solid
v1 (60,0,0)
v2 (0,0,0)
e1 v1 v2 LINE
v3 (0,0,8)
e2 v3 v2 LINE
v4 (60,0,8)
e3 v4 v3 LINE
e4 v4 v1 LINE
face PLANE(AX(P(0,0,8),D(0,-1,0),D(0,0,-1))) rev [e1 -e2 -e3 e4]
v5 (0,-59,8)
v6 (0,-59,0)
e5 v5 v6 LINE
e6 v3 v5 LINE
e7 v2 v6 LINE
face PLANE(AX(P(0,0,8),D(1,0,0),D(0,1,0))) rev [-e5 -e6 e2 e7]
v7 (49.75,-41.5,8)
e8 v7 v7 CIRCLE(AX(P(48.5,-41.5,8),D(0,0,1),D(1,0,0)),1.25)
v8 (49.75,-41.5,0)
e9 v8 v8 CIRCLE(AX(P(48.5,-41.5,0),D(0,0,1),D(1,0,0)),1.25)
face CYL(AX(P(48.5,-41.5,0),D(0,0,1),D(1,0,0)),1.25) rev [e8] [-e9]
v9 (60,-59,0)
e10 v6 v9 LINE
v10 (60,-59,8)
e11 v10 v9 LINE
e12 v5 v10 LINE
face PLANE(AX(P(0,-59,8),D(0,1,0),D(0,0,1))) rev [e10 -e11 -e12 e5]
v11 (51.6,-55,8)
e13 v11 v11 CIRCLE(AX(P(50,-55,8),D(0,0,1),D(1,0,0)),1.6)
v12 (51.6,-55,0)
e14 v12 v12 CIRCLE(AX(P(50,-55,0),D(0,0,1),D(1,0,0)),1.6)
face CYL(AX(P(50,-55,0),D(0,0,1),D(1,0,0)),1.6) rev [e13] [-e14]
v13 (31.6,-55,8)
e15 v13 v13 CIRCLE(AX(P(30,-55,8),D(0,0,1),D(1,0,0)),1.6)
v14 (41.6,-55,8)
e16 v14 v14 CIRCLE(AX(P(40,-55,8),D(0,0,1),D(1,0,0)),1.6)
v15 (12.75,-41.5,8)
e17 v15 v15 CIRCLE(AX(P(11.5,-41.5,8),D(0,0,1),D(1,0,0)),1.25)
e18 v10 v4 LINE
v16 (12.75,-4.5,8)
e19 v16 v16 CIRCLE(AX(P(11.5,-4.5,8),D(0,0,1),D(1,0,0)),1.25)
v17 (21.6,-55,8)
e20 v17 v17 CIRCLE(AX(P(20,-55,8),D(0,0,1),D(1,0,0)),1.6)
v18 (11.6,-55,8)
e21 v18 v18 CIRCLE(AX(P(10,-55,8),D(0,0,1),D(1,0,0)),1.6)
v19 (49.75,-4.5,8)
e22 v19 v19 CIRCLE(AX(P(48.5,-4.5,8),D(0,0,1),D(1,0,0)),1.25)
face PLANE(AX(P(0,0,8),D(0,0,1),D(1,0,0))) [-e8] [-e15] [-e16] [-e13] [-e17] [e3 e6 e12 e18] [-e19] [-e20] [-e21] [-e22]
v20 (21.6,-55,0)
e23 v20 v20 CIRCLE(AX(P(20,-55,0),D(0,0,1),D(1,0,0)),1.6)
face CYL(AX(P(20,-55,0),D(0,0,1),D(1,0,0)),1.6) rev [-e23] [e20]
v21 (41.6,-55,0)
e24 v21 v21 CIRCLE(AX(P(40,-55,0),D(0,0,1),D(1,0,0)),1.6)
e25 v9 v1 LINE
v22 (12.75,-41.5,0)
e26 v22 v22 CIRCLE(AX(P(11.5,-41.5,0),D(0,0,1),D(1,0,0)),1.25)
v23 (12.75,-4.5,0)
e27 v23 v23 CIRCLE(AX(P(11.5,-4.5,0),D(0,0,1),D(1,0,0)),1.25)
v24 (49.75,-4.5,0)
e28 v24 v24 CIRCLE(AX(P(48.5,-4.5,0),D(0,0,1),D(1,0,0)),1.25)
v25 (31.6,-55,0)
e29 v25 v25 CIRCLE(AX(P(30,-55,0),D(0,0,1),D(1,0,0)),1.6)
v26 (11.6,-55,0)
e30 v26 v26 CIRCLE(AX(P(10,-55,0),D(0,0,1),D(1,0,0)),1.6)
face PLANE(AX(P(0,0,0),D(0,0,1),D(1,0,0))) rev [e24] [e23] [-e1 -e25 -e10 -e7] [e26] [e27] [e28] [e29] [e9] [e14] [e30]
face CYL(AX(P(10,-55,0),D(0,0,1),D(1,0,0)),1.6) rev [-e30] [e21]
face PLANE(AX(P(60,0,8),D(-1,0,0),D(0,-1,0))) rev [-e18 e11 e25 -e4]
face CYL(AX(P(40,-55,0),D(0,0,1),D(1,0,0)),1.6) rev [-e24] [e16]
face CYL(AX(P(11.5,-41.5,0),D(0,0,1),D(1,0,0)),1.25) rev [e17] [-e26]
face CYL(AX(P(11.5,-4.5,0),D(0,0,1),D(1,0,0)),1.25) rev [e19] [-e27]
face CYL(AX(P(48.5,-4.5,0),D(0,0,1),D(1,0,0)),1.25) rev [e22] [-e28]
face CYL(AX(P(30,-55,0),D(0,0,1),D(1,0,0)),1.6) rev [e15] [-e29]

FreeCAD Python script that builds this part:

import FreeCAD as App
import Part
import Sketcher
Q = App.Units.Quantity


def add_polygon(sketch, points):
    """Adds a closed chain of lines whose ends are joined by coincident constraints."""
    first, n = sketch.GeometryCount, len(points)
    for a, b in zip(points, points[1:] + points[:1]):
        sketch.addGeometry(Part.LineSegment(App.Vector(*a, 0), App.Vector(*b, 0)), False)
    for i in range(n):
        sketch.addConstraint(Sketcher.Constraint("Coincident", first + i, 2, first + (i + 1) % n, 1))

doc = App.newDocument("Part")
params = doc.addObject("Spreadsheet::Sheet", "Params")
for row, (alias, value) in enumerate([
    ("sketch1_width", "60 mm"),
    ("sketch1_height", "59 mm"),
    ("pad1_length", "8 mm"),
    ("sketch2_diameter", "2.5 mm"),
    ("pocket1_length", "8 mm"),
    ("sketch3_diameter", "3.2 mm"),
], start=1):
    params.set(f"A{row}", alias)
    params.set(f"B{row}", "=" + value)
    params.setAlias(f"B{row}", alias)

body = doc.addObject("PartDesign::Body", "Body")

# Sketch on XY plane
sketch1 = body.newObject("Sketcher::SketchObject", "Sketch")
sketch1.AttachmentSupport = (doc.getObject("XY_Plane"), [""])
sketch1.MapMode = "FlatFace"
add_polygon(sketch1, [(0, 0), (0, -59), (60, -59), (60, 0)])  # lines 0-3
sketch1.addConstraint(Sketcher.Constraint("Vertical", 0))
sketch1.addConstraint(Sketcher.Constraint("Horizontal", 1))
sketch1.addConstraint(Sketcher.Constraint("Vertical", 2))
sketch1.addConstraint(Sketcher.Constraint("Horizontal", 3))
sketch1.addConstraint(Sketcher.Constraint("Coincident", 3, 2, -1, 1))
sketch1.addConstraint(Sketcher.Constraint("DistanceX", 1, 1, 1, 2, Q("60 mm")))
sketch1.addConstraint(Sketcher.Constraint("DistanceY", 0, 2, 0, 1, Q("59 mm")))
sketch1.setExpression("Constraints[9]", "Params.sketch1_width")
sketch1.setExpression("Constraints[10]", "Params.sketch1_height")
pad1 = body.newObject("PartDesign::Pad", "Pad")
pad1.Profile = sketch1
pad1.setExpression("Length", "Params.pad1_length")

# Sketch on XY plane
sketch2 = body.newObject("Sketcher::SketchObject", "Sketch001")
sketch2.AttachmentSupport = (doc.getObject("XY_Plane"), [""])
sketch2.MapMode = "FlatFace"
sketch2.AttachmentOffset = App.Placement(App.Vector(0, 0, 8), App.Rotation())
sketch2.addGeometry(Part.Circle(App.Vector(11.5, -4.5, 0), App.Vector(0, 0, 1), 1.25), False)
sketch2.addGeometry(Part.Circle(App.Vector(48.5, -4.5, 0), App.Vector(0, 0, 1), 1.25), False)
sketch2.addGeometry(Part.Circle(App.Vector(11.5, -41.5, 0), App.Vector(0, 0, 1), 1.25), False)
sketch2.addGeometry(Part.Circle(App.Vector(48.5, -41.5, 0), App.Vector(0, 0, 1), 1.25), False)
sketch2.addConstraint(Sketcher.Constraint("Equal", 0, 1))
sketch2.addConstraint(Sketcher.Constraint("Equal", 1, 2))
sketch2.addConstraint(Sketcher.Constraint("Equal", 2, 3))
sketch2.addConstraint(Sketcher.Constraint("Horizontal", 0, 3, 1, 3))
sketch2.addConstraint(Sketcher.Constraint("Horizontal", 2, 3, 3, 3))
sketch2.addConstraint(Sketcher.Constraint("Vertical", 0, 3, 2, 3))
sketch2.addConstraint(Sketcher.Constraint("Vertical", 1, 3, 3, 3))
sketch2.addConstraint(Sketcher.Constraint("Diameter", 0, Q("2.5 mm")))
sketch2.addConstraint(Sketcher.Constraint("DistanceX", 0, 3, 1, 3, Q("37 mm")))
sketch2.addConstraint(Sketcher.Constraint("DistanceY", 2, 3, 0, 3, Q("37 mm")))
sketch2.addConstraint(Sketcher.Constraint("DistanceX", -1, 1, 0, 3, Q("11.5 mm")))
sketch2.addConstraint(Sketcher.Constraint("DistanceY", 0, 3, -1, 1, Q("4.5 mm")))
sketch2.setExpression("Constraints[7]", "Params.sketch2_diameter")
pocket1 = body.newObject("PartDesign::Pocket", "Pocket")
pocket1.Profile = sketch2
pocket1.setExpression("Length", "Params.pocket1_length")

# Sketch on XY plane
sketch3 = body.newObject("Sketcher::SketchObject", "Sketch002")
sketch3.AttachmentSupport = (doc.getObject("XY_Plane"), [""])
sketch3.MapMode = "FlatFace"
sketch3.AttachmentOffset = App.Placement(App.Vector(0, 0, 8), App.Rotation())
sketch3.addGeometry(Part.Circle(App.Vector(10, -55, 0), App.Vector(0, 0, 1), 1.6), False)
sketch3.addGeometry(Part.Circle(App.Vector(20, -55, 0), App.Vector(0, 0, 1), 1.6), False)
sketch3.addGeometry(Part.Circle(App.Vector(30, -55, 0), App.Vector(0, 0, 1), 1.6), False)
sketch3.addGeometry(Part.Circle(App.Vector(40, -55, 0), App.Vector(0, 0, 1), 1.6), False)
sketch3.addGeometry(Part.Circle(App.Vector(50, -55, 0), App.Vector(0, 0, 1), 1.6), False)
sketch3.addConstraint(Sketcher.Constraint("Equal", 0, 1))
sketch3.addConstraint(Sketcher.Constraint("Equal", 1, 2))
sketch3.addConstraint(Sketcher.Constraint("Equal", 2, 3))
sketch3.addConstraint(Sketcher.Constraint("Equal", 3, 4))
sketch3.addConstraint(Sketcher.Constraint("Horizontal", 0, 3, 1, 3))
sketch3.addConstraint(Sketcher.Constraint("Horizontal", 1, 3, 2, 3))
sketch3.addConstraint(Sketcher.Constraint("Horizontal", 2, 3, 3, 3))
sketch3.addConstraint(Sketcher.Constraint("Horizontal", 3, 3, 4, 3))
sketch3.addConstraint(Sketcher.Constraint("Diameter", 0, Q("3.2 mm")))
sketch3.addConstraint(Sketcher.Constraint("DistanceX", -1, 1, 0, 3, Q("10 mm")))
sketch3.addConstraint(Sketcher.Constraint("DistanceY", 0, 3, -1, 1, Q("55 mm")))
sketch3.addConstraint(Sketcher.Constraint("DistanceX", -1, 1, 1, 3, Q("20 mm")))
sketch3.addConstraint(Sketcher.Constraint("DistanceX", -1, 1, 2, 3, Q("30 mm")))
sketch3.addConstraint(Sketcher.Constraint("DistanceX", -1, 1, 3, 3, Q("40 mm")))
sketch3.addConstraint(Sketcher.Constraint("DistanceX", -1, 1, 4, 3, Q("50 mm")))
sketch3.setExpression("Constraints[8]", "Params.sketch3_diameter")
pocket2 = body.newObject("PartDesign::Pocket", "Pocket001")
pocket2.Profile = sketch3
pocket2.Type = "ThroughAll"

doc.recompute()
